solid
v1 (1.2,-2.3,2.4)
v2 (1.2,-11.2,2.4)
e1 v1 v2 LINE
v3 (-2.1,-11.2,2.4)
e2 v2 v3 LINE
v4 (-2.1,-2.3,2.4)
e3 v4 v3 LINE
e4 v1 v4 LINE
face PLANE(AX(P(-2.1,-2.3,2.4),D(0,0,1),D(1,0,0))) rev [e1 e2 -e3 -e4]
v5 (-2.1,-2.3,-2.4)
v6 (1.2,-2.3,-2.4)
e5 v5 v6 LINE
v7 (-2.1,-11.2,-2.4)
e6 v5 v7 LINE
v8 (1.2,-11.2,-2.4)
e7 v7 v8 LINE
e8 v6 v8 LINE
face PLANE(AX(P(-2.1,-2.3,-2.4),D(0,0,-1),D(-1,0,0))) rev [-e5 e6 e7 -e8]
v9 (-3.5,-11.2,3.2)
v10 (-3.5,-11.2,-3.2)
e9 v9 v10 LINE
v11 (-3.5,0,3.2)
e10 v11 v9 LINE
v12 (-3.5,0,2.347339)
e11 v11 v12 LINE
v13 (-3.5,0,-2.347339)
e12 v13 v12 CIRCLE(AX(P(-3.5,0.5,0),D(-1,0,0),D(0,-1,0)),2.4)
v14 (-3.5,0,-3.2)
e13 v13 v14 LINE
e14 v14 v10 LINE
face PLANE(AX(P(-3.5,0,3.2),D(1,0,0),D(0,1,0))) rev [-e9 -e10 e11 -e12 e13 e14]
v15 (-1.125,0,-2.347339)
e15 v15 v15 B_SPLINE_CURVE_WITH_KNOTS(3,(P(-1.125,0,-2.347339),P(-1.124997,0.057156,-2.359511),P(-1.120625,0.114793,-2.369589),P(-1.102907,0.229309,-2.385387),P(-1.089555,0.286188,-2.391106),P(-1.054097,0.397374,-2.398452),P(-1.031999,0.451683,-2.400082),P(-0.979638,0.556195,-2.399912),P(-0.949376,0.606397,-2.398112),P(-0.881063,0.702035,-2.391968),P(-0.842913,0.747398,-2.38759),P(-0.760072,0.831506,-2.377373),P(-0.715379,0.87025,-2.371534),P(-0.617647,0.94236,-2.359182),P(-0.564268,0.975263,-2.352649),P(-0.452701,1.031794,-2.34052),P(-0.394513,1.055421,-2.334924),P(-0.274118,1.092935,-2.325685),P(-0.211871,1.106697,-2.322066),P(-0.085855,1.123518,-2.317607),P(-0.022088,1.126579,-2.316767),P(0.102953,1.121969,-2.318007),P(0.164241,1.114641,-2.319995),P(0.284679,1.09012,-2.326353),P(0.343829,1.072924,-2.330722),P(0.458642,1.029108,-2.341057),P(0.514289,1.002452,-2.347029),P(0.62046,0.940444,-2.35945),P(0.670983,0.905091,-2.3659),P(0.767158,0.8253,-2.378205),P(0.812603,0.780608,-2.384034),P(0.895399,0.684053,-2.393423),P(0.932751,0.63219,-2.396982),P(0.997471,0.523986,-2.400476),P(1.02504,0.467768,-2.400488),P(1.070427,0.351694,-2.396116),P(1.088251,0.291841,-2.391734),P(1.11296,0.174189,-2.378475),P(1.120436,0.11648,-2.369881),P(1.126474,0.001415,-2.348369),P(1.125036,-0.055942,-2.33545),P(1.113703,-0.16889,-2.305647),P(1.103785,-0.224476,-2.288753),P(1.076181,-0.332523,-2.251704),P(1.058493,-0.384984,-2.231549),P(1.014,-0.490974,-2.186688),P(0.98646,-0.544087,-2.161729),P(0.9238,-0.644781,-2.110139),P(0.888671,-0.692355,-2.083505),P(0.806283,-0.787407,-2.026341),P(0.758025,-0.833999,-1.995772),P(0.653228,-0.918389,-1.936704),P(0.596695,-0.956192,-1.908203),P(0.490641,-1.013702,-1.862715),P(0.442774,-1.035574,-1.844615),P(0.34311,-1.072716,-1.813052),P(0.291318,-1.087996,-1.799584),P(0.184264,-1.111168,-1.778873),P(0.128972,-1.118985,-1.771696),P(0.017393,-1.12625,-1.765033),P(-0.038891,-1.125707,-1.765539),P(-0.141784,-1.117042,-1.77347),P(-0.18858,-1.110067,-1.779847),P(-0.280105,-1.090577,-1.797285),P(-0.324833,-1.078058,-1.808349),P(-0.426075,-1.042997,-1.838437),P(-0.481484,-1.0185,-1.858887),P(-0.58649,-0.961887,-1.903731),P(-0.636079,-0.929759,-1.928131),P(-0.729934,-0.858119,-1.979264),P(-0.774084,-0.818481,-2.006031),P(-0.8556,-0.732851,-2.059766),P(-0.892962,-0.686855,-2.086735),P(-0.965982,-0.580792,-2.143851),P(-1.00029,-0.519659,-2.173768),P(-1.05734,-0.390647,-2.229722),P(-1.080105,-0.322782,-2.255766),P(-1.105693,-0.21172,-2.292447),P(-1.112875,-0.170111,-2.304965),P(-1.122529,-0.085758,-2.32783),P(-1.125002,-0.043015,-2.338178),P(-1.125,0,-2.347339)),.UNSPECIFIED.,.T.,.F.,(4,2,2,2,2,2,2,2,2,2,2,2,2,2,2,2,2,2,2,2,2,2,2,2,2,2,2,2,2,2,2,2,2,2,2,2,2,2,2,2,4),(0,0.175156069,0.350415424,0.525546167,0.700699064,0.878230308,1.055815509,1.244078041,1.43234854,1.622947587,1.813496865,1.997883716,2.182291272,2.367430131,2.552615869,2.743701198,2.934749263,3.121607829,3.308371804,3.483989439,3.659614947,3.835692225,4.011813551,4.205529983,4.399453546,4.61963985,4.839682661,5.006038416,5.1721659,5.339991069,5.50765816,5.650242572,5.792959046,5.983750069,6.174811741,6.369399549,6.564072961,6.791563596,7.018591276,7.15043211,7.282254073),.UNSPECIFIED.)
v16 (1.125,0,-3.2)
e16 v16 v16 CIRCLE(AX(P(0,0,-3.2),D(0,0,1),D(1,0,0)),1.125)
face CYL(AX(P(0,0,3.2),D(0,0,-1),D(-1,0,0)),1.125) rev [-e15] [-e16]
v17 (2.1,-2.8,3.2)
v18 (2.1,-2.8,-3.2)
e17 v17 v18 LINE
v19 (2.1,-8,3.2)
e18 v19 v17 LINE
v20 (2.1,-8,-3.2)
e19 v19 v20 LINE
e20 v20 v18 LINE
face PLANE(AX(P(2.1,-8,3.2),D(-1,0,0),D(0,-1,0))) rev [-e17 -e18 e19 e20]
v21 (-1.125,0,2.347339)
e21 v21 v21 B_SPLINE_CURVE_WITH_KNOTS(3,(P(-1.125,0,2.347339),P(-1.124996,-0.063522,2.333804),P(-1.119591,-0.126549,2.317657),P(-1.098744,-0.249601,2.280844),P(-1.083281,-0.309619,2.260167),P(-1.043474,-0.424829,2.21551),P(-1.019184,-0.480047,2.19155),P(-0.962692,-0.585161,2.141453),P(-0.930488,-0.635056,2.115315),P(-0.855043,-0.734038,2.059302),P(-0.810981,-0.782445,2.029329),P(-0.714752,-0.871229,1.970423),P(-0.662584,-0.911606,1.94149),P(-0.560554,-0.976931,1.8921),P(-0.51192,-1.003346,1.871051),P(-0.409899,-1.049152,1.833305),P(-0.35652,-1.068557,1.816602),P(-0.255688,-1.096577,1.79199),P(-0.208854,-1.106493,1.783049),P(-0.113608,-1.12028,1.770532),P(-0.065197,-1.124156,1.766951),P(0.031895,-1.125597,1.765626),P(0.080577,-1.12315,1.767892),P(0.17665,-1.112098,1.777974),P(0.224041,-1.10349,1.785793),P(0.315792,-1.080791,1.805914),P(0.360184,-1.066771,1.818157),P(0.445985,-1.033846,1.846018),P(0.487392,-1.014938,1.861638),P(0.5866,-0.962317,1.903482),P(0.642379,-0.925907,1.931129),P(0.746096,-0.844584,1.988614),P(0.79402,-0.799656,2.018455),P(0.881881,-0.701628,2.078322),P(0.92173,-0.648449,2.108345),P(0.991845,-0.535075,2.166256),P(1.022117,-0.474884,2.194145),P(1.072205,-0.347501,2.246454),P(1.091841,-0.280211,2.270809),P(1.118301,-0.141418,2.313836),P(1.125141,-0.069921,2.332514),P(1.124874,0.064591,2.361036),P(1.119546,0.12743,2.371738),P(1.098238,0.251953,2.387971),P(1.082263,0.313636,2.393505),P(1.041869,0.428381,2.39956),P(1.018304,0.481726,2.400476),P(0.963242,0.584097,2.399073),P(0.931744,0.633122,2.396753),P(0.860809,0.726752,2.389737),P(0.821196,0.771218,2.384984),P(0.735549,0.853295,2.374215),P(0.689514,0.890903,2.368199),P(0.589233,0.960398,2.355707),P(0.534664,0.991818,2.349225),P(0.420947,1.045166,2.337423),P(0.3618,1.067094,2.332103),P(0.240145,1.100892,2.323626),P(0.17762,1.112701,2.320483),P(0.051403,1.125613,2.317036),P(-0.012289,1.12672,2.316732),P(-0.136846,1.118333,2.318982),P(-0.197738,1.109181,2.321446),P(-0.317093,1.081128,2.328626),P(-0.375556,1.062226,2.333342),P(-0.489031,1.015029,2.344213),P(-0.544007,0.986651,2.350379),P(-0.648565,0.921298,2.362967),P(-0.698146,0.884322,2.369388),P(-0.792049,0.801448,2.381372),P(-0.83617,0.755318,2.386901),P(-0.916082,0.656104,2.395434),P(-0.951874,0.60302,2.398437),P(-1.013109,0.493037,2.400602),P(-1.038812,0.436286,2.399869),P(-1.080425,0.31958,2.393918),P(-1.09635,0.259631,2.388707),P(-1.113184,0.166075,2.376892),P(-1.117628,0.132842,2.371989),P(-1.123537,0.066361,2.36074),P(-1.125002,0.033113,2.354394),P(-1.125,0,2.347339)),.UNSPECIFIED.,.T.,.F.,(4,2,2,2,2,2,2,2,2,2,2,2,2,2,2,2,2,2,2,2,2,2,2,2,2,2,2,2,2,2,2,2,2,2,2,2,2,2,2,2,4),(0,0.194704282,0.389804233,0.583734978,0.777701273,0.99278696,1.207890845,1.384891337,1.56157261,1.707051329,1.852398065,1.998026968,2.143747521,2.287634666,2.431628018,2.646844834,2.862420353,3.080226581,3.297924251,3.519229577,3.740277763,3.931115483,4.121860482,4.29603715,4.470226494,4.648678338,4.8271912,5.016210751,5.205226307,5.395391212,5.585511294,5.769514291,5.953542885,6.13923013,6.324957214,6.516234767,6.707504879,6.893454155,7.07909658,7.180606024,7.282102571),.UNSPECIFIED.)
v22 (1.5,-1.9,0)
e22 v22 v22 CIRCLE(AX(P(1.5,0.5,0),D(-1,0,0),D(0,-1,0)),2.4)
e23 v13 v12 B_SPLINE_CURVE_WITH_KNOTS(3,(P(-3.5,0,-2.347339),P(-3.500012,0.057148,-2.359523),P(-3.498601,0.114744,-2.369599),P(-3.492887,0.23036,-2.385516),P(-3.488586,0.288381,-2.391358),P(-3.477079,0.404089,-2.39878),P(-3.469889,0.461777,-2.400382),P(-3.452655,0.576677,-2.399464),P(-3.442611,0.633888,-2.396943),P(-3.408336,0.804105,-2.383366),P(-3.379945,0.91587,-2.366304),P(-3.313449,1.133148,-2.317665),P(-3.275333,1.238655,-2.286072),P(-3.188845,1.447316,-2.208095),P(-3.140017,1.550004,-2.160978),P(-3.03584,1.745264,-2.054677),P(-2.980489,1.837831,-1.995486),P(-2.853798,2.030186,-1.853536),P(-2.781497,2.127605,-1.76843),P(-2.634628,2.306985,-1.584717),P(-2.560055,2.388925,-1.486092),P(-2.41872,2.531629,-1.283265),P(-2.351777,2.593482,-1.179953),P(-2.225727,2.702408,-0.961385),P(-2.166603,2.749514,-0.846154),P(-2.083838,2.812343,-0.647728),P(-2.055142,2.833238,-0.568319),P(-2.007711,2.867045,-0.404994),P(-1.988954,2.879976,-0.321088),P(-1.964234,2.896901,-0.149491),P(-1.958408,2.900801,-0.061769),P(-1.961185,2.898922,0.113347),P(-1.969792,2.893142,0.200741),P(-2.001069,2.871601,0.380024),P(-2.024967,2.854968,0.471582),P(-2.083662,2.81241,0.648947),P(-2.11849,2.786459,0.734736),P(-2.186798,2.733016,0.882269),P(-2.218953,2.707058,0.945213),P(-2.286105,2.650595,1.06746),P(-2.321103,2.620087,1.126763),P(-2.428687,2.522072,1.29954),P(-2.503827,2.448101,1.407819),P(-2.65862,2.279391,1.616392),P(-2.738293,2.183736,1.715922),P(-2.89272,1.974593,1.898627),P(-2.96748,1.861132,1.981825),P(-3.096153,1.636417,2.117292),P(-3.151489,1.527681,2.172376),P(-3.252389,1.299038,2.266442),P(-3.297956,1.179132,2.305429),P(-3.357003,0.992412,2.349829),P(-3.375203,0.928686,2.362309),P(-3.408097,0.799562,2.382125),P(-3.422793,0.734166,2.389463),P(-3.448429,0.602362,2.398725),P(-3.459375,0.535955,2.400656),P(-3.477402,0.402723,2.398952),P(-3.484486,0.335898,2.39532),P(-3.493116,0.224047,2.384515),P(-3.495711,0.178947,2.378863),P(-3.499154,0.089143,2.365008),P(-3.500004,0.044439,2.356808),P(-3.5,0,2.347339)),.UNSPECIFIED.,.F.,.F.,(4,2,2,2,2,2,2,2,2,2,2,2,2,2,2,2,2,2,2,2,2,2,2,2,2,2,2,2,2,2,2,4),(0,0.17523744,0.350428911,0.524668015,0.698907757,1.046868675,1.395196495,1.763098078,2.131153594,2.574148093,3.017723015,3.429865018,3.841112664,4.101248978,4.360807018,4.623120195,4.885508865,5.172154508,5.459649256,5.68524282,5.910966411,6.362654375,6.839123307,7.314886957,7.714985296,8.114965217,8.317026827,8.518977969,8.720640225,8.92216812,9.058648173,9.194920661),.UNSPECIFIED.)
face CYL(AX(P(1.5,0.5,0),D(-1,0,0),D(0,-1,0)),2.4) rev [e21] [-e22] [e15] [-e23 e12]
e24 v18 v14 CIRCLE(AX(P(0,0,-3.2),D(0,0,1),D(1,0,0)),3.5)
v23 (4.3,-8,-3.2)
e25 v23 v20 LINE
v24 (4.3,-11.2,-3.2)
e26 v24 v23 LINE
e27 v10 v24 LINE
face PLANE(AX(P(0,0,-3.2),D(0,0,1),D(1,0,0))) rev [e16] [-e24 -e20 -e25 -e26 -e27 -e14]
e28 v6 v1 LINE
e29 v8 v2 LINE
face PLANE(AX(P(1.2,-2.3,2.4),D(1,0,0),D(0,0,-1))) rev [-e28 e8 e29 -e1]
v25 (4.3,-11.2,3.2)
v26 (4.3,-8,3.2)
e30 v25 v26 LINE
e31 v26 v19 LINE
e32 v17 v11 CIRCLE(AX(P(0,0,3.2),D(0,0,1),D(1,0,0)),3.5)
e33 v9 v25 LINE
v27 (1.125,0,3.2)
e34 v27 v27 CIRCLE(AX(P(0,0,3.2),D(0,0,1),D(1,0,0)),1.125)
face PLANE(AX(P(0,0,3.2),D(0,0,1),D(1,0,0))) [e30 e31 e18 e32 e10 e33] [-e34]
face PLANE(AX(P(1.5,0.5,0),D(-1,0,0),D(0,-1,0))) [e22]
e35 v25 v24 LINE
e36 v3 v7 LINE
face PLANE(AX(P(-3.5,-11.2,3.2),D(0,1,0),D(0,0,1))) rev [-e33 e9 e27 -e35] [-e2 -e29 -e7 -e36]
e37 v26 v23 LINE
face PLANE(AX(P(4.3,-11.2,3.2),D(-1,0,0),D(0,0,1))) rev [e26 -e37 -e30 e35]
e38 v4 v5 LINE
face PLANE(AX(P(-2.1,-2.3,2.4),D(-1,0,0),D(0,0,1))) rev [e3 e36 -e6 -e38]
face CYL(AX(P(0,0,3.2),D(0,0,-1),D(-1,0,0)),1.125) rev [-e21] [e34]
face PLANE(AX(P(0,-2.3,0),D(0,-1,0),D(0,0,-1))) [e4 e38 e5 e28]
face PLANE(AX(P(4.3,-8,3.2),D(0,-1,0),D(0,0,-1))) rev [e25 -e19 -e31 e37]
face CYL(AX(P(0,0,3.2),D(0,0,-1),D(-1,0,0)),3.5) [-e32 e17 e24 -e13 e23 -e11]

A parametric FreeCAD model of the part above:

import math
import FreeCAD as App
import Part
import Sketcher

V = App.Vector


def add_polygon(sketch, points):
    """Adds a closed chain of lines whose ends are joined by coincident constraints."""
    first, n = sketch.GeometryCount, len(points)
    for a, b in zip(points, points[1:] + points[:1]):
        sketch.addGeometry(Part.LineSegment(App.Vector(*a, 0), App.Vector(*b, 0)), False)
    for i in range(n):
        sketch.addConstraint(Sketcher.Constraint("Coincident", first + i, 2, first + (i + 1) % n, 1))

doc = App.newDocument("Part")
body = doc.addObject("PartDesign::Body", "Body")

sketch1 = body.newObject("Sketcher::SketchObject", "Sketch")
sketch1.AttachmentSupport = (doc.getObject("XY_Plane"), [""])
sketch1.MapMode = "FlatFace"
sketch1.addGeometry(Part.LineSegment(V(-3.5, 0, 0), V(-3.5, -11.2, 0)), False)
sketch1.addGeometry(Part.LineSegment(V(-3.5, -11.2, 0), V(4.3, -11.2, 0)), False)
sketch1.addGeometry(Part.LineSegment(V(4.3, -11.2, 0), V(4.3, -8, 0)), False)
sketch1.addGeometry(Part.LineSegment(V(4.3, -8, 0), V(2.1, -8, 0)), False)
sketch1.addGeometry(Part.LineSegment(V(2.1, -8, 0), V(2.1, -2.8, 0)), False)
sketch1.addGeometry(Part.ArcOfCircle(Part.Circle(V(0, 0, 0), V(0, 0, 1), 3.5), math.radians(-53.130102), math.radians(180)), False)
sketch1.addGeometry(Part.Circle(V(0, 0, 0), V(0, 0, 1), 1.125), False)
sketch1.addConstraint(Sketcher.Constraint("Coincident", 0, 2, 1, 1))
sketch1.addConstraint(Sketcher.Constraint("Coincident", 1, 2, 2, 1))
sketch1.addConstraint(Sketcher.Constraint("Coincident", 2, 2, 3, 1))
sketch1.addConstraint(Sketcher.Constraint("Coincident", 3, 2, 4, 1))
sketch1.addConstraint(Sketcher.Constraint("Coincident", 4, 2, 5, 1))
sketch1.addConstraint(Sketcher.Constraint("Tangent", 5, 2, 0, 1))
sketch1.addConstraint(Sketcher.Constraint("Vertical", 0))
sketch1.addConstraint(Sketcher.Constraint("Horizontal", 1))
sketch1.addConstraint(Sketcher.Constraint("Vertical", 2))
sketch1.addConstraint(Sketcher.Constraint("Horizontal", 3))
sketch1.addConstraint(Sketcher.Constraint("Vertical", 4))
sketch1.addConstraint(Sketcher.Constraint("Coincident", 5, 3, -1, 1))
sketch1.addConstraint(Sketcher.Constraint("Coincident", 6, 3, -1, 1))
sketch1.addConstraint(Sketcher.Constraint("Radius", 5, 3.5))
sketch1.addConstraint(Sketcher.Constraint("Diameter", 6, 2.25))
sketch1.addConstraint(Sketcher.Constraint("DistanceX", 1, 1, 1, 2, 7.8))
sketch1.addConstraint(Sketcher.Constraint("DistanceX", 3, 2, 3, 1, 2.2))
sketch1.addConstraint(Sketcher.Constraint("DistanceY", 0, 2, 0, 1, 11.2))
sketch1.addConstraint(Sketcher.Constraint("DistanceY", 2, 1, 2, 2, 3.2))
pad1 = body.newObject("PartDesign::Pad", "Pad")
pad1.Profile = sketch1
pad1.Length = 6.4
pad1.Midplane = True

sketch2 = body.newObject("Sketcher::SketchObject", "Sketch001")
sketch2.AttachmentSupport = (doc.getObject("XZ_Plane"), [""])
sketch2.MapMode = "FlatFace"
sketch2.AttachmentOffset = App.Placement(V(0, 0, 11.2), App.Rotation())
add_polygon(sketch2, [(-2.1, 2.4), (-2.1, -2.4), (1.2, -2.4), (1.2, 2.4)])
sketch2.addConstraint(Sketcher.Constraint("Vertical", 0))
sketch2.addConstraint(Sketcher.Constraint("Horizontal", 1))
sketch2.addConstraint(Sketcher.Constraint("Vertical", 2))
sketch2.addConstraint(Sketcher.Constraint("Horizontal", 3))
sketch2.addConstraint(Sketcher.Constraint("DistanceX", 1, 1, 1, 2, 3.3))
sketch2.addConstraint(Sketcher.Constraint("DistanceY", 0, 2, 0, 1, 4.8))
sketch2.addConstraint(Sketcher.Constraint("DistanceX", 0, 2, -1, 1, 2.1))
sketch2.addConstraint(Sketcher.Constraint("DistanceY", 0, 2, -1, 1, 2.4))
pocket1 = body.newObject("PartDesign::Pocket", "Pocket")
pocket1.Profile = sketch2
pocket1.Length = 8.9

sketch3 = body.newObject("Sketcher::SketchObject", "Sketch002")
sketch3.AttachmentSupport = (doc.getObject("YZ_Plane"), [""])
sketch3.MapMode = "FlatFace"
sketch3.AttachmentOffset = App.Placement(V(0, 0, -3.5), App.Rotation())
sketch3.addGeometry(Part.Circle(V(0.5, 0, 0), V(0, 0, 1), 2.4), False)
sketch3.addConstraint(Sketcher.Constraint("PointOnObject", 0, 3, -1))
sketch3.addConstraint(Sketcher.Constraint("Diameter", 0, 4.8))
sketch3.addConstraint(Sketcher.Constraint("DistanceX", -1, 1, 0, 3, 0.5))
pocket2 = body.newObject("PartDesign::Pocket", "Pocket001")
pocket2.Profile = sketch3
pocket2.Length = 5
pocket2.Reversed = True

doc.recompute()
